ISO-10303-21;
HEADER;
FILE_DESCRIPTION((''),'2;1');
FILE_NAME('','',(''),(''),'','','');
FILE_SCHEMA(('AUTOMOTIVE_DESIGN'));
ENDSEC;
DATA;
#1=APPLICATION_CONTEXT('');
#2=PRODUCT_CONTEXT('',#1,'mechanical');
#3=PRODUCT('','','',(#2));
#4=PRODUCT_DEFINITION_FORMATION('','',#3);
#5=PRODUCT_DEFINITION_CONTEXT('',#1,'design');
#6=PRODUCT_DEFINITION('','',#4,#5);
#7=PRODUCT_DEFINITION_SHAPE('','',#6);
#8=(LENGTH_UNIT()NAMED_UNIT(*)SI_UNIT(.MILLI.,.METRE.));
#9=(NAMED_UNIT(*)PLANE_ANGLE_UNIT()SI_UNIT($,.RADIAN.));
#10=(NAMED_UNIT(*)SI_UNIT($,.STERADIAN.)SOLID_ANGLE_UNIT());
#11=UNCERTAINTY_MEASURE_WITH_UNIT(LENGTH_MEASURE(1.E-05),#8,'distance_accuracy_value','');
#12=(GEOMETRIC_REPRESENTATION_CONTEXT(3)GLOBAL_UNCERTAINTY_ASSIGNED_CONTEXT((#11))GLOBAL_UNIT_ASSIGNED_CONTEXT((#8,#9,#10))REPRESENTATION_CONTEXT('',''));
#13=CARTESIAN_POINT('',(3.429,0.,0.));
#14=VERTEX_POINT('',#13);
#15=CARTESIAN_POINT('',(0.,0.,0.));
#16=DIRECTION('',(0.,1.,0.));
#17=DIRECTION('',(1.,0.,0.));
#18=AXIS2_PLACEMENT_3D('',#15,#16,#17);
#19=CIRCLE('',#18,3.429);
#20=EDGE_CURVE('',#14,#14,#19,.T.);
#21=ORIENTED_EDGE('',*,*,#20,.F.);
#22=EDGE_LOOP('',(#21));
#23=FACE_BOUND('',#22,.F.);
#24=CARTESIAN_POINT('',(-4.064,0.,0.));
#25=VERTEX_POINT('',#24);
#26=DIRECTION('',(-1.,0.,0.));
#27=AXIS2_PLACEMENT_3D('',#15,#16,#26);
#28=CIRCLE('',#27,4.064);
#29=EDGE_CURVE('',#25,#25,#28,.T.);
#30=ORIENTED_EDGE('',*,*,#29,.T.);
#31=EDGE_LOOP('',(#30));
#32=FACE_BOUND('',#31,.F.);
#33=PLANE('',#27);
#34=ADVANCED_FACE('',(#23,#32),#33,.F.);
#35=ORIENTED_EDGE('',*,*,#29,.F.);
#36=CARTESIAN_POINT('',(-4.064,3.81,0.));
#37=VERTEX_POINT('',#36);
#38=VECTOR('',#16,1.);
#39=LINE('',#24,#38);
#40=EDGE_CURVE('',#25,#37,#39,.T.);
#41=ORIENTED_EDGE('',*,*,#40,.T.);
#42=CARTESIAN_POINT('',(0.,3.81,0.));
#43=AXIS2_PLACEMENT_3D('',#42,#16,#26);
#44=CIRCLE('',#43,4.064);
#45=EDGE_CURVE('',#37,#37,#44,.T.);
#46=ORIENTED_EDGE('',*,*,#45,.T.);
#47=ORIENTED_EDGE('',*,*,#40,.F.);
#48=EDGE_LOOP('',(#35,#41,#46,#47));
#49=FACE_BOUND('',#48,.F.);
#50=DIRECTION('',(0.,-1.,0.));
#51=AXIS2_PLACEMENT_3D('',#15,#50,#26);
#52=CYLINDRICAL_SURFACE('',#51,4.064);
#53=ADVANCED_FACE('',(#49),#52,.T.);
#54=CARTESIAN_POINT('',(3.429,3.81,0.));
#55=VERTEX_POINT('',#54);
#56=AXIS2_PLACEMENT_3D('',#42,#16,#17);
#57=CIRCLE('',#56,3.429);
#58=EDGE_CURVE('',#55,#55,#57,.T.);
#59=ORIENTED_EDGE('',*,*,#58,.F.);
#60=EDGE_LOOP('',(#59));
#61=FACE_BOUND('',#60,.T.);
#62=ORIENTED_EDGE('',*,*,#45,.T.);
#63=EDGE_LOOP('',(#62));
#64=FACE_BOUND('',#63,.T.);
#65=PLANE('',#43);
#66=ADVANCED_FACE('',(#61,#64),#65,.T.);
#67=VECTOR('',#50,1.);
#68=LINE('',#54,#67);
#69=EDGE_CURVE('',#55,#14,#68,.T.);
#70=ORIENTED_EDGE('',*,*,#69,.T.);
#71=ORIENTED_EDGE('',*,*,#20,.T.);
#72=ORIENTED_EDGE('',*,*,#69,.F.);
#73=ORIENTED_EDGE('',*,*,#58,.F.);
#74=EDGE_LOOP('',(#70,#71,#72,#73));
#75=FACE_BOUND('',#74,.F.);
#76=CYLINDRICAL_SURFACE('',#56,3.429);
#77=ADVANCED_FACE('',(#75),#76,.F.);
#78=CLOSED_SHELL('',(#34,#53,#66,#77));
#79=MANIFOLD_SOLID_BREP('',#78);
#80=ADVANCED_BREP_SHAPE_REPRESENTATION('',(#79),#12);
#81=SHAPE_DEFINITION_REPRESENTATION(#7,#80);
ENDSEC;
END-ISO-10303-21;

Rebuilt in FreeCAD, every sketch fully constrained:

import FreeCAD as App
import Part
import Sketcher
Q = App.Units.Quantity

doc = App.newDocument("Part")
body = doc.addObject("PartDesign::Body", "Body")

sketch1 = body.newObject("Sketcher::SketchObject", "Sketch")
sketch1.AttachmentSupport = (doc.getObject("XZ_Plane"), [""])
sketch1.MapMode = "FlatFace"
sketch1.addGeometry(Part.Circle(App.Vector(0, 0, 0), App.Vector(0, 0, 1), 4.1), False)
sketch1.addConstraint(Sketcher.Constraint("Coincident", 0, 3, -1, 1))
sketch1.addConstraint(Sketcher.Constraint("Diameter", 0, Q("0.32 in")))
pad1 = body.newObject("PartDesign::Pad", "Pad")
pad1.Profile = sketch1
pad1.Length = Q("0.15 in")
pad1.Reversed = True

sketch2 = body.newObject("Sketcher::SketchObject", "Sketch001")
sketch2.AttachmentSupport = (doc.getObject("XZ_Plane"), [""])
sketch2.MapMode = "FlatFace"
sketch2.AttachmentOffset = App.Placement(App.Vector(0, 0, -0.15 * 25.4), App.Rotation())
sketch2.addGeometry(Part.Circle(App.Vector(0, 0, 0), App.Vector(0, 0, 1), 3.4), False)
sketch2.addConstraint(Sketcher.Constraint("Coincident", 0, 3, -1, 1))
sketch2.addConstraint(Sketcher.Constraint("Diameter", 0, Q("0.27 in")))
pocket1 = body.newObject("PartDesign::Pocket", "Pocket")
pocket1.Profile = sketch2
pocket1.Type = "ThroughAll"
pocket1.Reversed = True

doc.recompute()
